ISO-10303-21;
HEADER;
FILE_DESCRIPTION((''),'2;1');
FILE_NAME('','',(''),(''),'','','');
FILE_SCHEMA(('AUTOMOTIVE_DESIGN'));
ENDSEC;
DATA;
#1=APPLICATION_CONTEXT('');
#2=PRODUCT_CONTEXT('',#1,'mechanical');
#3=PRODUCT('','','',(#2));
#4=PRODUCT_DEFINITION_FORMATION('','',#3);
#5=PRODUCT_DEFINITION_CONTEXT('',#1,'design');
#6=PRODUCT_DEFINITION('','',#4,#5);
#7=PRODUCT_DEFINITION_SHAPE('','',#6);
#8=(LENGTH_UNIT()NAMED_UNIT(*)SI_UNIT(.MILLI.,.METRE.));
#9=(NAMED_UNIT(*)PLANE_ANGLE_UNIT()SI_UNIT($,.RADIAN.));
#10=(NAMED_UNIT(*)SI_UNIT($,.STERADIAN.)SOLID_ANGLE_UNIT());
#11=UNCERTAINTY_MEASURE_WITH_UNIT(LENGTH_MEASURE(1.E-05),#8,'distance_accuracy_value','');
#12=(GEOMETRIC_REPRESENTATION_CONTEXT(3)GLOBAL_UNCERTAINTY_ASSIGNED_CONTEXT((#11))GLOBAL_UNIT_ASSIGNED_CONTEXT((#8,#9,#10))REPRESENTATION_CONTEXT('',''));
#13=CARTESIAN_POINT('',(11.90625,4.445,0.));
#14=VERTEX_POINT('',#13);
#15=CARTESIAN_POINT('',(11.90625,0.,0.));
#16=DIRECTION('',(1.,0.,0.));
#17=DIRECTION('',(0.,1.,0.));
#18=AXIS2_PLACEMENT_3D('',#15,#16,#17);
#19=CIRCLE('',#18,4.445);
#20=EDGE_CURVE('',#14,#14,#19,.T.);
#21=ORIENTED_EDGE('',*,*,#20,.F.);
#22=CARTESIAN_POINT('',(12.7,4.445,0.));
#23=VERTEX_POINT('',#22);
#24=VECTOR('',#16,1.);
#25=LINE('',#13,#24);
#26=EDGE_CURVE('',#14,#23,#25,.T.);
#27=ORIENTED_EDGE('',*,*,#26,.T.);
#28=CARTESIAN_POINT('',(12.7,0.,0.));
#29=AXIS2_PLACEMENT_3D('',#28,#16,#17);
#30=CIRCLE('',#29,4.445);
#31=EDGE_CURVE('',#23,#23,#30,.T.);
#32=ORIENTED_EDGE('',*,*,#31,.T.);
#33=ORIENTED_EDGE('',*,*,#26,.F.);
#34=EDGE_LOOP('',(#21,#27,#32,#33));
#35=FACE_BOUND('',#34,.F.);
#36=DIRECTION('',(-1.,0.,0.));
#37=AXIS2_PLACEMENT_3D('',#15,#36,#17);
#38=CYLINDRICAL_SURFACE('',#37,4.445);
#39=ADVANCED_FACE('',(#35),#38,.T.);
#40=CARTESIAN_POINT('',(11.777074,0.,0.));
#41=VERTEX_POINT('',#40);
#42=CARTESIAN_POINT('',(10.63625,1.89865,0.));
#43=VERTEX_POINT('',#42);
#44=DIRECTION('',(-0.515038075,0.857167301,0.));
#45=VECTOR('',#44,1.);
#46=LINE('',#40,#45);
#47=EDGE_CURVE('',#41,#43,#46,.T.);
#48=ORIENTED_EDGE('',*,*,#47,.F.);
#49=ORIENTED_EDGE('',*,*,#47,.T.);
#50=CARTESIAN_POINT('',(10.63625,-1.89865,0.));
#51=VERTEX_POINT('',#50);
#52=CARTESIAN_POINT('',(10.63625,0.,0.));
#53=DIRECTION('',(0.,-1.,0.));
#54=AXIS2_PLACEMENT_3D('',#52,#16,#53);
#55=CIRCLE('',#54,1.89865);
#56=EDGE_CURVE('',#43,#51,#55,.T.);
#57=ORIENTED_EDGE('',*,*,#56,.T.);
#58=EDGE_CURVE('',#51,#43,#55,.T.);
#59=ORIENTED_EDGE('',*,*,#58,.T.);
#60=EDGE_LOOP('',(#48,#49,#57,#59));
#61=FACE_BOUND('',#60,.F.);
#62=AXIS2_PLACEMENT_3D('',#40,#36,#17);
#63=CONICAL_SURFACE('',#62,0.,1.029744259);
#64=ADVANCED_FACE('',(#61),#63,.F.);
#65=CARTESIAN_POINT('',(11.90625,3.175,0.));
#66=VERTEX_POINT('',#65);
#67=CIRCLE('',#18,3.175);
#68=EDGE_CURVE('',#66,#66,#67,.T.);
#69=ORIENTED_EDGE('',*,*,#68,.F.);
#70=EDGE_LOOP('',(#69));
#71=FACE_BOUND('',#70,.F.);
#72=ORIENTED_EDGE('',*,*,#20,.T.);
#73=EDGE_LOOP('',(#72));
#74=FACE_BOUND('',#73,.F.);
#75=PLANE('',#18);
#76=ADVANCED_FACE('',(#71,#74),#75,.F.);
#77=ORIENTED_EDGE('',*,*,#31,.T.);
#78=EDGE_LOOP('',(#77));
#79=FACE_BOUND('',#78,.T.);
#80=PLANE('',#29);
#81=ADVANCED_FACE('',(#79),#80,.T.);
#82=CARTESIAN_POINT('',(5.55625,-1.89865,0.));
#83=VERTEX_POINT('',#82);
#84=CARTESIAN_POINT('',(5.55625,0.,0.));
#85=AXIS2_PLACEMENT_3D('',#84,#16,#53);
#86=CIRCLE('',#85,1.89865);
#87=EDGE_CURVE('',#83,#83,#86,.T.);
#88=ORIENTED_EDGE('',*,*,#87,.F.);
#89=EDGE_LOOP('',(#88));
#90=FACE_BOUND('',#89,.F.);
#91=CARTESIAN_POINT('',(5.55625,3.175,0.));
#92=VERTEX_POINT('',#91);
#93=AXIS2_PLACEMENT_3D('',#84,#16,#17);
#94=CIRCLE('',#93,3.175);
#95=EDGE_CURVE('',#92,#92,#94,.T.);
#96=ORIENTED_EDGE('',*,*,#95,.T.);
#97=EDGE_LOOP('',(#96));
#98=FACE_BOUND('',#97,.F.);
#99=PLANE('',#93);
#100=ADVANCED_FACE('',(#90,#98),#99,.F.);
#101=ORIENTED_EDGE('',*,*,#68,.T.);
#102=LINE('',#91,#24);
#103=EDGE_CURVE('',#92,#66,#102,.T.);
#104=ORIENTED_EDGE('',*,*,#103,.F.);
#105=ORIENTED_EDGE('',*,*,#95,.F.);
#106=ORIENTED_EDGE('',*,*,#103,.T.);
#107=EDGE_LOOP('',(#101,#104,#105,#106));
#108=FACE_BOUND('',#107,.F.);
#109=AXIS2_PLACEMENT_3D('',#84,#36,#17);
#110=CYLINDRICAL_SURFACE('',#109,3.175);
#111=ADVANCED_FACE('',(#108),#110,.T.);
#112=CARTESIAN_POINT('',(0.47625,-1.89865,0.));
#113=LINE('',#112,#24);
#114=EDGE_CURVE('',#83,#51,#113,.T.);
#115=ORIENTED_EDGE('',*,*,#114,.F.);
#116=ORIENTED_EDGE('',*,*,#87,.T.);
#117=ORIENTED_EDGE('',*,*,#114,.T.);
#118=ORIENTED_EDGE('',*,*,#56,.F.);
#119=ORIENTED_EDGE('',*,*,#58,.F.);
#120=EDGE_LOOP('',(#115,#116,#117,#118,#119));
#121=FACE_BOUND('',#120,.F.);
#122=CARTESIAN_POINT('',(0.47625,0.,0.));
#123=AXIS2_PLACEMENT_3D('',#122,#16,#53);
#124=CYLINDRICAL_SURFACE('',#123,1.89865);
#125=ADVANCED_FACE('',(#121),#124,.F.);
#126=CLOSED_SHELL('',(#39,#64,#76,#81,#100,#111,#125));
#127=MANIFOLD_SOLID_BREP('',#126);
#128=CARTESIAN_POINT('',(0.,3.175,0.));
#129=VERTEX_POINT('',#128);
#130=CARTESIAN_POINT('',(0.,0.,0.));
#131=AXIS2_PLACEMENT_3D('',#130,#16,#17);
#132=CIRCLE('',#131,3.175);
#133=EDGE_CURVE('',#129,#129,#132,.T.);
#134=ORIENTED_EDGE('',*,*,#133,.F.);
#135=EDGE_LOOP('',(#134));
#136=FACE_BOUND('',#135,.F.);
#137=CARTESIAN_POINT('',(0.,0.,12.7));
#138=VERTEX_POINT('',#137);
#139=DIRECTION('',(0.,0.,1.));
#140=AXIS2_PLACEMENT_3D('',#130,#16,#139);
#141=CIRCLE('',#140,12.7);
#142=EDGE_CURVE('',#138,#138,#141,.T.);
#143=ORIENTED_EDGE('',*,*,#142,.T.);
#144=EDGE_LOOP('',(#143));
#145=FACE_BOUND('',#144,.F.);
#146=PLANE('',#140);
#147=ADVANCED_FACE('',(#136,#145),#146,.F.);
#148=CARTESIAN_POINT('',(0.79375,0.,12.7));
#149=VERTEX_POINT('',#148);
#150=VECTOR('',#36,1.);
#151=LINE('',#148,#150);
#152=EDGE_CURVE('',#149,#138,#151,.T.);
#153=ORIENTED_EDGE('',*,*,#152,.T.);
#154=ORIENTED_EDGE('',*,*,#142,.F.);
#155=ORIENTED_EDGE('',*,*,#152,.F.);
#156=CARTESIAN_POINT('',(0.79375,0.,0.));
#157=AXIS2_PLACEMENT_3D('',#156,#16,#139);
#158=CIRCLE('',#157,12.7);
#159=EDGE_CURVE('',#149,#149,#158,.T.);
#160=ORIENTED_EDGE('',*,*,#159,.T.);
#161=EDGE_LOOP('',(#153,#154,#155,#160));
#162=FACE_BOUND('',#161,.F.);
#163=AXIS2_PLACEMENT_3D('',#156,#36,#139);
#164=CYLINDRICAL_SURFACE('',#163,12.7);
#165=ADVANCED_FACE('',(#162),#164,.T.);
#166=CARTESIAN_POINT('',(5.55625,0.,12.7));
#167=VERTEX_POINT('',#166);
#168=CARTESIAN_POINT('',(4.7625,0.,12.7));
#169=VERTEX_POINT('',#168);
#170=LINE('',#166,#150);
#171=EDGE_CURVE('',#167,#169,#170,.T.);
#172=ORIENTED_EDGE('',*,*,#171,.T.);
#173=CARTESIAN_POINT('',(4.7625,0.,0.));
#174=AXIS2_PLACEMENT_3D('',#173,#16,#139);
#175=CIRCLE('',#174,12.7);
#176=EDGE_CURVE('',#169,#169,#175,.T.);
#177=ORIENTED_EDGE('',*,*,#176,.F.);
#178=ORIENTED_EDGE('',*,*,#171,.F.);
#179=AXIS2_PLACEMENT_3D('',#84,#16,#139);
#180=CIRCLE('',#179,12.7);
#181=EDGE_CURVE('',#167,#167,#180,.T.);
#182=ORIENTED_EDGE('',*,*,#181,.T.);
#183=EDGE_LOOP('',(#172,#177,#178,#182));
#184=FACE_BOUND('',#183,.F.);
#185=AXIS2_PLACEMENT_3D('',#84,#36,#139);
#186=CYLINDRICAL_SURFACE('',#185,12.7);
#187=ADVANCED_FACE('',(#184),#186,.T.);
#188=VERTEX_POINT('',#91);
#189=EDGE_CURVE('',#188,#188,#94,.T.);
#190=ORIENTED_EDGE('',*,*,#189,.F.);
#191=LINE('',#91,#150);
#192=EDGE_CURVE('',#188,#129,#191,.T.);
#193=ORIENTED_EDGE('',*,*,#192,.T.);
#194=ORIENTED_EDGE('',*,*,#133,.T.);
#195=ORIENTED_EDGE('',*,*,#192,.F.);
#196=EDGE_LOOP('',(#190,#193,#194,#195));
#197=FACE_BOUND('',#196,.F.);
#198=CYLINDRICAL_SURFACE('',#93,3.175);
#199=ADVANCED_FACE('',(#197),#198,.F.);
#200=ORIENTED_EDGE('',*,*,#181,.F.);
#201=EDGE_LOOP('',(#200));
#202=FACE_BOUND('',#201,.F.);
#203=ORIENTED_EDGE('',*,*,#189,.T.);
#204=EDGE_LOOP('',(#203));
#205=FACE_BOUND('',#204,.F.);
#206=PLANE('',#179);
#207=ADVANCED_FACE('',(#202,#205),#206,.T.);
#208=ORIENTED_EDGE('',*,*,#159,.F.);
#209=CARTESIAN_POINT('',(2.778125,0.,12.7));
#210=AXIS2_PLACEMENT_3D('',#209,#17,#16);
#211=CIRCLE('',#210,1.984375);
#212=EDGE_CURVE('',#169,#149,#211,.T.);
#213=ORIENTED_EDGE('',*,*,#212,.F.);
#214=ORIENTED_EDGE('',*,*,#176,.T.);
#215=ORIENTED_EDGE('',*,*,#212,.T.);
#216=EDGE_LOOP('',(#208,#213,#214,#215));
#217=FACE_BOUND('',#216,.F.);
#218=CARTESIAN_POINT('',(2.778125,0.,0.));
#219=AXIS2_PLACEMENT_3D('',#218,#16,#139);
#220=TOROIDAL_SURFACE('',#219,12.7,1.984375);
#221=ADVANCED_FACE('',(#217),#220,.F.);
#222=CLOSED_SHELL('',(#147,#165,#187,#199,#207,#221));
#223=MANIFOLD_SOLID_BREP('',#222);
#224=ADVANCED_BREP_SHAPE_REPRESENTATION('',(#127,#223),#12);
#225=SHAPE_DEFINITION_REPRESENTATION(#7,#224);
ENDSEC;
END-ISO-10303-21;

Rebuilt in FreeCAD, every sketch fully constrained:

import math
import FreeCAD as App
import Part
import Sketcher
from FreeCAD import Vector
Q = App.Units.Quantity

doc = App.newDocument("Part")
body = doc.addObject("PartDesign::Body", "Body")

sketch1 = body.newObject("Sketcher::SketchObject", "Sketch")
sketch1.AttachmentSupport = (doc.getObject("XZ_Plane"), [""])
sketch1.MapMode = "FlatFace"
sketch1.addGeometry(Part.LineSegment(Vector(0, 12.7, 0), Vector(0, 0, 0)), False)
sketch1.addGeometry(Part.LineSegment(Vector(0, 0, 0), Vector(5.6, 0, 0)), False)
sketch1.addGeometry(Part.LineSegment(Vector(5.6, 0, 0), Vector(5.6, 12.7, 0)), False)
sketch1.addGeometry(Part.LineSegment(Vector(5.6, 12.7, 0), Vector(4.8, 12.7, 0)), False)
sketch1.addGeometry(Part.ArcOfCircle(Part.Circle(Vector(2.8, 12.7, 0), Vector(0, 0, 1), 2), math.radians(180), math.radians(360)), False)
sketch1.addGeometry(Part.LineSegment(Vector(0.8, 12.7, 0), Vector(0, 12.7, 0)), False)
sketch1.addConstraint(Sketcher.Constraint("Coincident", 0, 2, 1, 1))
sketch1.addConstraint(Sketcher.Constraint("Coincident", 1, 2, 2, 1))
sketch1.addConstraint(Sketcher.Constraint("Coincident", 2, 2, 3, 1))
sketch1.addConstraint(Sketcher.Constraint("Coincident", 3, 2, 4, 2))
sketch1.addConstraint(Sketcher.Constraint("Coincident", 4, 1, 5, 1))
sketch1.addConstraint(Sketcher.Constraint("Coincident", 5, 2, 0, 1))
sketch1.addConstraint(Sketcher.Constraint("Vertical", 0))
sketch1.addConstraint(Sketcher.Constraint("Horizontal", 1))
sketch1.addConstraint(Sketcher.Constraint("Vertical", 2))
sketch1.addConstraint(Sketcher.Constraint("Horizontal", 3))
sketch1.addConstraint(Sketcher.Constraint("Horizontal", 5))
sketch1.addConstraint(Sketcher.Constraint("Coincident", 0, 2, -1, 1))
sketch1.addConstraint(Sketcher.Constraint("Horizontal", 4, 3, 2, 2))
sketch1.addConstraint(Sketcher.Constraint("Horizontal", 3, 2, 4, 1))
sketch1.addConstraint(Sketcher.Constraint("Equal", 3, 5))
sketch1.addConstraint(Sketcher.Constraint("DistanceY", 0, 2, 0, 1, Q("0.5 in")))
sketch1.addConstraint(Sketcher.Constraint("Radius", 4, Q("0.078125 in")))
sketch1.addConstraint(Sketcher.Constraint("DistanceX", 1, 1, 1, 2, Q("0.21875 in")))
revolution = body.newObject("PartDesign::Revolution", "Revolution")
revolution.Profile = sketch1
revolution.ReferenceAxis = (sketch1, ["H_Axis"])
revolution.Angle = 360

sketch2 = body.newObject("Sketcher::SketchObject", "Sketch001")
sketch2.AttachmentSupport = (doc.getObject("YZ_Plane"), [""])
sketch2.MapMode = "FlatFace"
sketch2.AttachmentOffset = App.Placement(Vector(0, 0, 0.21875 * 25.4), App.Rotation())
sketch2.addGeometry(Part.Circle(Vector(0, 0, 0), Vector(0, 0, 1), 3.2), False)
sketch2.addConstraint(Sketcher.Constraint("Coincident", 0, 3, -1, 1))
sketch2.addConstraint(Sketcher.Constraint("Diameter", 0, Q("0.25 in")))
pocket1 = body.newObject("PartDesign::Pocket", "Pocket")
pocket1.Profile = sketch2
pocket1.Type = "ThroughAll"
body2 = doc.addObject("PartDesign::Body", "Body001")

sketch3 = body2.newObject("Sketcher::SketchObject", "Sketch002")
sketch3.AttachmentSupport = (doc.getObject("YZ_Plane001"), [""])
sketch3.MapMode = "FlatFace"
sketch3.AttachmentOffset = App.Placement(Vector(0, 0, 0.21875 * 25.4), App.Rotation())
sketch3.addGeometry(Part.Circle(Vector(0, 0, 0), Vector(0, 0, 1), 3.2), False)
sketch3.addConstraint(Sketcher.Constraint("Coincident", 0, 3, -1, 1))
sketch3.addConstraint(Sketcher.Constraint("Diameter", 0, Q("0.25 in")))
pad1 = body2.newObject("PartDesign::Pad", "Pad")
pad1.Profile = sketch3
pad1.Length = Q("0.25 in")

sketch4 = body2.newObject("Sketcher::SketchObject", "Sketch003")
sketch4.AttachmentSupport = (doc.getObject("YZ_Plane001"), [""])
sketch4.MapMode = "FlatFace"
sketch4.AttachmentOffset = App.Placement(Vector(0, 0, 0.46875 * 25.4), App.Rotation())
sketch4.addGeometry(Part.Circle(Vector(0, 0, 0), Vector(0, 0, 1), 4.4), False)
sketch4.addConstraint(Sketcher.Constraint("Coincident", 0, 3, -1, 1))
sketch4.addConstraint(Sketcher.Constraint("Diameter", 0, Q("0.35 in")))
pad2 = body2.newObject("PartDesign::Pad", "Pad001")
pad2.Profile = sketch4
pad2.Length = Q("0.03125 in")

sketch5 = body2.newObject("Sketcher::SketchObject", "Sketch004")
sketch5.AttachmentSupport = (doc.getObject("YZ_Plane001"), [""])
sketch5.MapMode = "FlatFace"
sketch5.AttachmentOffset = App.Placement(Vector(0, 0, 0.21875 * 25.4), App.Rotation())
sketch5.addGeometry(Part.Circle(Vector(0, 0, 0), Vector(0, 0, 1), 1.9), False)
sketch5.addConstraint(Sketcher.Constraint("Coincident", 0, 3, -1, 1))
sketch5.addConstraint(Sketcher.Constraint("Diameter", 0, Q("0.1495 in")))
doc.recompute()
hole = body2.newObject("PartDesign::Hole", "Hole")
hole.Profile = sketch5
hole.ThreadType = "None"
hole.Diameter = Q("0.1495 in")
hole.DepthType = "Dimension"
hole.Depth = Q("0.2 in")
hole.DrillPoint = "Angled"
hole.DrillPointAngle = 118
hole.Reversed = True

doc.recompute()
